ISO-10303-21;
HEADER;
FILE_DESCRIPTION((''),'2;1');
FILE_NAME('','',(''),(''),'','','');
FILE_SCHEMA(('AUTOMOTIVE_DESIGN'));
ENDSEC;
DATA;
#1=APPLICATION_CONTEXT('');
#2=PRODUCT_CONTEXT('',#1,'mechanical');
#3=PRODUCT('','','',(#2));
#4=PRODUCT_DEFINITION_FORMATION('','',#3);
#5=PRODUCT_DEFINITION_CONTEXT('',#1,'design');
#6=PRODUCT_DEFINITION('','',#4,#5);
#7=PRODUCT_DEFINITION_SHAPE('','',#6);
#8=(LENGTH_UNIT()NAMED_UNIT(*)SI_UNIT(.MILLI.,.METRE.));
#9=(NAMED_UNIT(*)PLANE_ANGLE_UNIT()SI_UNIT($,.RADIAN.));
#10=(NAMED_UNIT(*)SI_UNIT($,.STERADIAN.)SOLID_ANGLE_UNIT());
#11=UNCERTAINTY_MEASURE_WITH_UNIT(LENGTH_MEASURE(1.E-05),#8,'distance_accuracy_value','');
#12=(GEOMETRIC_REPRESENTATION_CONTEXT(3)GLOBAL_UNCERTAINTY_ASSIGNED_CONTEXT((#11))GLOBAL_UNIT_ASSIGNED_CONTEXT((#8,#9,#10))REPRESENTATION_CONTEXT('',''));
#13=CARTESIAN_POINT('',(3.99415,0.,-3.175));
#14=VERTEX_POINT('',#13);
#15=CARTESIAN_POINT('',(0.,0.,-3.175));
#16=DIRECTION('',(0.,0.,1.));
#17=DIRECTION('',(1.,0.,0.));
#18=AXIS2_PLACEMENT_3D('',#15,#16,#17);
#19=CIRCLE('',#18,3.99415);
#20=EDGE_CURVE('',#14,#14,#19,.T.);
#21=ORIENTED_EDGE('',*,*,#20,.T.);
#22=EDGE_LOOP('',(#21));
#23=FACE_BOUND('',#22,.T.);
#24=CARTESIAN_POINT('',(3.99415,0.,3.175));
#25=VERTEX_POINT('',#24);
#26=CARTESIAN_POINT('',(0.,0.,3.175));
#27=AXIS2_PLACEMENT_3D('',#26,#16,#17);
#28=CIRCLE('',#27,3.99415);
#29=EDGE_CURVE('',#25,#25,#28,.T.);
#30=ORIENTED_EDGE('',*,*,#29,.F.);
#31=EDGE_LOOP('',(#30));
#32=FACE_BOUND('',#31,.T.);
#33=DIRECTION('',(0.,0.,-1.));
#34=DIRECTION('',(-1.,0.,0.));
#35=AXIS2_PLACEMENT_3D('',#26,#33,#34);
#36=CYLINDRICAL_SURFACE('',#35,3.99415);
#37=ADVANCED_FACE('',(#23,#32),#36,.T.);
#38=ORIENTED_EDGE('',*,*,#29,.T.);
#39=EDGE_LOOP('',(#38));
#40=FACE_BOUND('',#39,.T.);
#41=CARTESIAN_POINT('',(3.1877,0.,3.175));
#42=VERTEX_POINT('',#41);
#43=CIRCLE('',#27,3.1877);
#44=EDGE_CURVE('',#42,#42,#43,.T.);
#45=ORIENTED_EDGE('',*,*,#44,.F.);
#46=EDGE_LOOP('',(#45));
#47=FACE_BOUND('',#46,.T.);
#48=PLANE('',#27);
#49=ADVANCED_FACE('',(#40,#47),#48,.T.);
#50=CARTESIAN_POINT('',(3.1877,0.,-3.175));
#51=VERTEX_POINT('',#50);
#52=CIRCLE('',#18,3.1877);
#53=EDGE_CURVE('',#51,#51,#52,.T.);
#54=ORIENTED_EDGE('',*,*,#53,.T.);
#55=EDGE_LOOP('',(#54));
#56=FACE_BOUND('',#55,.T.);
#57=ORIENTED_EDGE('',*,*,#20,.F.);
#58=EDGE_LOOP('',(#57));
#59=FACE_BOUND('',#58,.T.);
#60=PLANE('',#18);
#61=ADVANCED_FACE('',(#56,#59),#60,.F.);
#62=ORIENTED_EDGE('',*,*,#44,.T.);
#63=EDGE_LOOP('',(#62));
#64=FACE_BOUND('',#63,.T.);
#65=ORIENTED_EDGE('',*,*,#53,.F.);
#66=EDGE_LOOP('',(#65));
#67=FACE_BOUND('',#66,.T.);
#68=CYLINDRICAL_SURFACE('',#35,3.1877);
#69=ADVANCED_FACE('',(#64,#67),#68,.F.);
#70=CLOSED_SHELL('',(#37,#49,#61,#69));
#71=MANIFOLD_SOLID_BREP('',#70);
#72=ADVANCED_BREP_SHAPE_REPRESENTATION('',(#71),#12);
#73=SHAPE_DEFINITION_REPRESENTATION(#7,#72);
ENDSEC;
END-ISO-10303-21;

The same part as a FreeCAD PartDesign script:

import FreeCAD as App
import Part
import Sketcher

V = App.Vector
Q = App.Units.Quantity

doc = App.newDocument("Part")
body = doc.addObject("PartDesign::Body", "Body")

# Sketch on XY plane
sketch1 = body.newObject("Sketcher::SketchObject", "Sketch")
sketch1.AttachmentSupport = (doc.getObject("XY_Plane"), [""])
sketch1.MapMode = "FlatFace"
sketch1.addGeometry(Part.Circle(V(0, 0, 0), V(0, 0, 1), 3.99415), False)
sketch1.addGeometry(Part.Circle(V(0, 0, 0), V(0, 0, 1), 3.1877), False)
sketch1.addConstraint(Sketcher.Constraint("Coincident", 0, 3, -1, 1))
sketch1.addConstraint(Sketcher.Constraint("Coincident", 1, 3, -1, 1))
sketch1.addConstraint(Sketcher.Constraint("Diameter", 1, Q("0.251 in")))
sketch1.addConstraint(Sketcher.Constraint("Diameter", 0, Q("0.3145 in")))
pad1 = body.newObject("PartDesign::Pad", "Pad")
pad1.Profile = sketch1
pad1.Length = Q("0.25 in")
pad1.Midplane = True

doc.recompute()
